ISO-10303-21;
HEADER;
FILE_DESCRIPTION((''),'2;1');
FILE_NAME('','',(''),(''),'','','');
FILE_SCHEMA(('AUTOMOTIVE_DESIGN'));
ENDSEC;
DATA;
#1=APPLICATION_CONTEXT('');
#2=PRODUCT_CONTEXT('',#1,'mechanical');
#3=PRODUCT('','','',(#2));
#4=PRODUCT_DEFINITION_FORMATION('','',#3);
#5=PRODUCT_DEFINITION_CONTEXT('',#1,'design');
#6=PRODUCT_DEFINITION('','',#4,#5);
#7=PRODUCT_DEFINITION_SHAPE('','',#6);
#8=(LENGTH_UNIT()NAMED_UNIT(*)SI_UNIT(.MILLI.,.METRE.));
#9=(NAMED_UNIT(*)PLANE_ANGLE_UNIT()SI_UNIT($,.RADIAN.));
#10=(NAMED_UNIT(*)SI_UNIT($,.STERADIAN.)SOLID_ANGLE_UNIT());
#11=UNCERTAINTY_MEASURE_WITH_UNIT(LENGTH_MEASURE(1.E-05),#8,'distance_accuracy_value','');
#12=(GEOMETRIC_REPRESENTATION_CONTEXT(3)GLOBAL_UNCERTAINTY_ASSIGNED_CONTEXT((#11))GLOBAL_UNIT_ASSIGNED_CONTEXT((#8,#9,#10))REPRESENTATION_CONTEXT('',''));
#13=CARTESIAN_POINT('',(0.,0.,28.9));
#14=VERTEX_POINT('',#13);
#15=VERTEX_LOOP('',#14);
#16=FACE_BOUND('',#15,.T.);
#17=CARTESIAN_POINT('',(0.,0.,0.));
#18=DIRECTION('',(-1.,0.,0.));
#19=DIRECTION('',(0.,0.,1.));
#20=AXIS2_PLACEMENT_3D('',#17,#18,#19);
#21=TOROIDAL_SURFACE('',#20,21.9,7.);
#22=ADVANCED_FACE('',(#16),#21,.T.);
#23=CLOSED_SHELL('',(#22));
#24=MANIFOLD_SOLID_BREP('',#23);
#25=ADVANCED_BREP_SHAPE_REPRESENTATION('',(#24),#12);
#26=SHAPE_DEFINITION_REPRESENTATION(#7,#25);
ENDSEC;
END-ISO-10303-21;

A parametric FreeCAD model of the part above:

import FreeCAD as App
import Part
import Sketcher

V = App.Vector

doc = App.newDocument("Part")
body = doc.addObject("PartDesign::Body", "Body")

sketch1 = doc.addObject("Sketcher::SketchObject", "Sketch")
body.addObject(sketch1)
sketch1.AttachmentSupport = (doc.XY_Plane, [""])
sketch1.MapMode = "FlatFace"
sketch1.addGeometry(Part.Circle(V(0, 21.9, 0), V(0, 0, 1), 7), False)
sketch1.addConstraint([
    Sketcher.Constraint("PointOnObject", 0, 3, -2),
    Sketcher.Constraint("Diameter", 0, 14.0),
    Sketcher.Constraint("DistanceY", -1, 1, 0, 3, 21.9),
])
revolution = doc.addObject("PartDesign::Revolution", "Revolution")
body.addObject(revolution)
revolution.Profile = sketch1
revolution.ReferenceAxis = (sketch1, ["H_Axis"])
revolution.Angle = 360

doc.recompute()
